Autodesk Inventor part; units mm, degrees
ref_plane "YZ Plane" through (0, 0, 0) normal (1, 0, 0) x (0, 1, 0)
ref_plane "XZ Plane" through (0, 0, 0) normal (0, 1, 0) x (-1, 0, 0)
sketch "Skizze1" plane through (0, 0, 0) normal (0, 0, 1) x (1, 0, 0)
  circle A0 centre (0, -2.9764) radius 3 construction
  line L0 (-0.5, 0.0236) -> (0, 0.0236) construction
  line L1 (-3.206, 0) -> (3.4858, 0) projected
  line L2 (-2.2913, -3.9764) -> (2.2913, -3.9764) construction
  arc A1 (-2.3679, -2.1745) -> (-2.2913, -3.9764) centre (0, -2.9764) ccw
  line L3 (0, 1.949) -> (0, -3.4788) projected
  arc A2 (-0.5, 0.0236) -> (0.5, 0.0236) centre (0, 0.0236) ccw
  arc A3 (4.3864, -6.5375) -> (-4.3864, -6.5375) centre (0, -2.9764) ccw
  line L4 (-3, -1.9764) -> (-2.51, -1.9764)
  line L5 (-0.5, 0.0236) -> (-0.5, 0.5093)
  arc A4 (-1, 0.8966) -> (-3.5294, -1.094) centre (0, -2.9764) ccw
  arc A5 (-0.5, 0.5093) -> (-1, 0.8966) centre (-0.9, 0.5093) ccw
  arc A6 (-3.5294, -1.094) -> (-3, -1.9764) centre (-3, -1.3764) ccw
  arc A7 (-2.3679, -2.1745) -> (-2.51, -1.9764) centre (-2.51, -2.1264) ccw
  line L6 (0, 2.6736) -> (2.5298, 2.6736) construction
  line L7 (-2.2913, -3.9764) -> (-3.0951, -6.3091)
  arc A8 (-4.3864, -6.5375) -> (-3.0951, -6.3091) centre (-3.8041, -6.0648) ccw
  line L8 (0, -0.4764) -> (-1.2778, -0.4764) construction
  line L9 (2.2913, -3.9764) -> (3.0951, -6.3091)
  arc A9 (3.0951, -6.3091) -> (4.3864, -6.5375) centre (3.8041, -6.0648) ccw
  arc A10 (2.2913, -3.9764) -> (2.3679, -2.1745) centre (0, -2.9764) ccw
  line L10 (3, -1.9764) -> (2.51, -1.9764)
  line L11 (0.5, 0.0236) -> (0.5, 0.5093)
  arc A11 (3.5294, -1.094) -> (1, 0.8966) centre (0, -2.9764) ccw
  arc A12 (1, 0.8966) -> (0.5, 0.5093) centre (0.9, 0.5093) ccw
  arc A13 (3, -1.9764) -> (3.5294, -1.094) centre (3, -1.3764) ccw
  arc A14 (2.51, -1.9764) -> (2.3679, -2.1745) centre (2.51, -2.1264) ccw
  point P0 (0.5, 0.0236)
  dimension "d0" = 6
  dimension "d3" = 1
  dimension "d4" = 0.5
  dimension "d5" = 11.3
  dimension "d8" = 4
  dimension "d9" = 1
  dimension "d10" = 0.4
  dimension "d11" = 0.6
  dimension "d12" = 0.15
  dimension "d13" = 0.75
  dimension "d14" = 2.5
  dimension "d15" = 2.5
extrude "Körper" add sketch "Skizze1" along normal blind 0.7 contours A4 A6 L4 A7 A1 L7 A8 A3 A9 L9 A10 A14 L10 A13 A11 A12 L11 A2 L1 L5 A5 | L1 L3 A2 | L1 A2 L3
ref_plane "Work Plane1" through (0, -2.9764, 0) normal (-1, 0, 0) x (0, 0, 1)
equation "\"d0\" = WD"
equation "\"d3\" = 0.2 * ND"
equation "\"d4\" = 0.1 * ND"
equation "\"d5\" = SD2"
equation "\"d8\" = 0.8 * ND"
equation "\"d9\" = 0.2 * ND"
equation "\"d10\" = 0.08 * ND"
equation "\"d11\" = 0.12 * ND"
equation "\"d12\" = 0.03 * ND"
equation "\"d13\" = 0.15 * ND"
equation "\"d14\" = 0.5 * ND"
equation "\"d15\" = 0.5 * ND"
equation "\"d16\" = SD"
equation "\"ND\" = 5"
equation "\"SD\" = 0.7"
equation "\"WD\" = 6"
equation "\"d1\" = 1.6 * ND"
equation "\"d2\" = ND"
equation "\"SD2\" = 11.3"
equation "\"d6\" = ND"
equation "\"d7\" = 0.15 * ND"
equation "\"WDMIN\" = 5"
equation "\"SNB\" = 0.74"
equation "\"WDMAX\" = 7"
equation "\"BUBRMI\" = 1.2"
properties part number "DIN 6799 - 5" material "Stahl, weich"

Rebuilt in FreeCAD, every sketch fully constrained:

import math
import FreeCAD as App
import Part
import Sketcher
from FreeCAD import Vector
Q = App.Units.Quantity

doc = App.newDocument("Part")
body = doc.addObject("PartDesign::Body", "Body")

sketch1 = doc.addObject("Sketcher::SketchObject", "Sketch")
body.addObject(sketch1)
sketch1.AttachmentSupport = (doc.XY_Plane, [""])
sketch1.MapMode = "FlatFace"
sketch1.addGeometry([
    Part.ArcOfCircle(Part.Circle(Vector(0, -2.98, 0), Vector(0, 0, 1), 4), math.radians(104), math.radians(152)),
    Part.ArcOfCircle(Part.Circle(Vector(-0.9, 0.51, 0), Vector(0, 0, 1), 0.4), math.radians(0), math.radians(104)),
    Part.LineSegment(Vector(-0.5, 0.51, 0), Vector(-0.5, 0.02, 0)),
    Part.ArcOfCircle(Part.Circle(Vector(0, 0.02, 0), Vector(0, 0, 1), 0.5), math.radians(180), math.radians(360)),
    Part.LineSegment(Vector(0.5, 0.02, 0), Vector(0.5, 0.51, 0)),
    Part.ArcOfCircle(Part.Circle(Vector(0.9, 0.51, 0), Vector(0, 0, 1), 0.4), math.radians(76), math.radians(180)),
    Part.ArcOfCircle(Part.Circle(Vector(0, -2.98, 0), Vector(0, 0, 1), 4), math.radians(28), math.radians(76)),
    Part.ArcOfCircle(Part.Circle(Vector(3, -1.38, 0), Vector(0, 0, 1), 0.6), math.radians(-90), math.radians(28)),
    Part.LineSegment(Vector(3, -1.98, 0), Vector(2.51, -1.98, 0)),
    Part.ArcOfCircle(Part.Circle(Vector(2.51, -2.13, 0), Vector(0, 0, 1), 0.15), math.radians(90), math.radians(199)),
    Part.ArcOfCircle(Part.Circle(Vector(0, -2.98, 0), Vector(0, 0, 1), 2.5), math.radians(-24), math.radians(19)),
    Part.LineSegment(Vector(2.29, -3.98, 0), Vector(3.1, -6.31, 0)),
    Part.ArcOfCircle(Part.Circle(Vector(3.8, -6.06, 0), Vector(0, 0, 1), 0.75), math.radians(-161), math.radians(-39)),
    Part.ArcOfCircle(Part.Circle(Vector(0, -2.98, 0), Vector(0, 0, 1), 5.65), math.radians(-39), math.radians(219)),
    Part.ArcOfCircle(Part.Circle(Vector(-3.8, -6.06, 0), Vector(0, 0, 1), 0.75), math.radians(-141), math.radians(-19)),
    Part.LineSegment(Vector(-3.1, -6.31, 0), Vector(-2.29, -3.98, 0)),
    Part.ArcOfCircle(Part.Circle(Vector(0, -2.98, 0), Vector(0, 0, 1), 2.5), math.radians(161), math.radians(204)),
    Part.ArcOfCircle(Part.Circle(Vector(-2.51, -2.13, 0), Vector(0, 0, 1), 0.15), math.radians(-19), math.radians(90)),
    Part.LineSegment(Vector(-2.51, -1.98, 0), Vector(-3, -1.98, 0)),
    Part.ArcOfCircle(Part.Circle(Vector(-3, -1.38, 0), Vector(0, 0, 1), 0.6), math.radians(152), math.radians(270)),
], False)
sketch1.addConstraint([
    Sketcher.Constraint("Tangent", 0, 1, 1, 2),
    Sketcher.Constraint("Tangent", 1, 1, 2, 1),
    Sketcher.Constraint("Tangent", 2, 2, 3, 1),
    Sketcher.Constraint("Tangent", 3, 2, 4, 1),
    Sketcher.Constraint("Tangent", 4, 2, 5, 2),
    Sketcher.Constraint("Tangent", 5, 1, 6, 2),
    Sketcher.Constraint("Tangent", 6, 1, 7, 2),
    Sketcher.Constraint("Tangent", 7, 1, 8, 1),
    Sketcher.Constraint("Tangent", 8, 2, 9, 1),
    Sketcher.Constraint("Tangent", 9, 2, 10, 2),
    Sketcher.Constraint("Coincident", 10, 1, 11, 1),
    Sketcher.Constraint("Tangent", 11, 2, 12, 1),
    Sketcher.Constraint("Tangent", 12, 2, 13, 1),
    Sketcher.Constraint("Tangent", 13, 2, 14, 1),
    Sketcher.Constraint("Tangent", 14, 2, 15, 1),
    Sketcher.Constraint("Coincident", 15, 2, 16, 2),
    Sketcher.Constraint("Tangent", 16, 1, 17, 1),
    Sketcher.Constraint("Tangent", 17, 2, 18, 1),
    Sketcher.Constraint("Tangent", 18, 2, 19, 2),
    Sketcher.Constraint("Tangent", 19, 1, 0, 2),
    Sketcher.Constraint("Vertical", 2),
    Sketcher.Constraint("Vertical", 4),
    Sketcher.Constraint("Horizontal", 8),
    Sketcher.Constraint("Horizontal", 18),
    Sketcher.Constraint("Coincident", 6, 3, 0, 3),
    Sketcher.Constraint("Coincident", 10, 3, 0, 3),
    Sketcher.Constraint("Coincident", 13, 3, 0, 3),
    Sketcher.Constraint("Coincident", 16, 3, 0, 3),
    Sketcher.Constraint("Equal", 1, 5),
    Sketcher.Constraint("Equal", 0, 6),
    Sketcher.Constraint("Equal", 12, 14),
    Sketcher.Constraint("Equal", 10, 16),
    Sketcher.Constraint("Equal", 9, 17),
    Sketcher.Constraint("Equal", 7, 19),
    Sketcher.Constraint("Symmetric", 1, 3, 5, 3, -2),
    Sketcher.Constraint("Symmetric", 11, 2, 14, 2, -2),
    Sketcher.Constraint("Horizontal", 9, 3, 17, 3),
    Sketcher.Constraint("Radius", 0, Q("4 mm")),
    Sketcher.Constraint("Radius", 1, Q("0.4 mm")),
    Sketcher.Constraint("Radius", 3, Q("0.5 mm")),
    Sketcher.Constraint("Radius", 7, Q("0.6 mm")),
    Sketcher.Constraint("Radius", 10, Q("2.5 mm")),
    Sketcher.Constraint("Radius", 9, Q("0.15 mm")),
    Sketcher.Constraint("Radius", 12, Q("0.75 mm")),
    Sketcher.Constraint("Radius", 13, Q("5.65 mm")),
    Sketcher.Constraint("DistanceY", 0, 3, 7, 1, Q("1 mm")),
    Sketcher.Constraint("DistanceY", 10, 1, 0, 3, Q("1 mm")),
    Sketcher.Constraint("DistanceY", 0, 3, 3, 3, Q("3 mm")),
    Sketcher.Constraint("DistanceX", -1, 1, 12, 3, Q("3.804 mm")),
    Sketcher.Constraint("DistanceY", 6, 1, -1, 1, Q("1.094 mm")),
])
pad1 = doc.addObject("PartDesign::Pad", "Pad")
body.addObject(pad1)
pad1.Profile = sketch1
pad1.Length = 0.7

doc.recompute()
